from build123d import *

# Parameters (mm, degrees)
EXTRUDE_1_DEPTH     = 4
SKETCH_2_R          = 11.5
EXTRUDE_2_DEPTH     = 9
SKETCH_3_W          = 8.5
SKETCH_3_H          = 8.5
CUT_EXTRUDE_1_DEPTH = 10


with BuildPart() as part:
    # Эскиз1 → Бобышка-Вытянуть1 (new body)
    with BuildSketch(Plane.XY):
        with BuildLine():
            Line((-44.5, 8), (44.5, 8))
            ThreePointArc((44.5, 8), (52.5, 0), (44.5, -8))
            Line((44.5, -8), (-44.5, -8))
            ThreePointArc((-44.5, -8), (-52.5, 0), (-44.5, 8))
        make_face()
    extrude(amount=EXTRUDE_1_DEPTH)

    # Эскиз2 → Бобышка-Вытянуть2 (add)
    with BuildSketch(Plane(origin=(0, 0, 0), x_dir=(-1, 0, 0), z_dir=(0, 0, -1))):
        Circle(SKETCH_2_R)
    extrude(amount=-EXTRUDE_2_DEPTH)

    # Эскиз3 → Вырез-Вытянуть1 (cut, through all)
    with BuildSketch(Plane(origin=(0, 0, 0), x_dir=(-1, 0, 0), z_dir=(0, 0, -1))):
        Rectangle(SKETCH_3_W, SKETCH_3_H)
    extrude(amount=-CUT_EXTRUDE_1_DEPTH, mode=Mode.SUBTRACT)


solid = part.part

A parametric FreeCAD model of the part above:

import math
import FreeCAD as App
import Part
import Sketcher
from FreeCAD import Vector


def add_polygon(sketch, points):
    """Adds a closed chain of lines whose ends are joined by coincident constraints."""
    first, n = sketch.GeometryCount, len(points)
    for a, b in zip(points, points[1:] + points[:1]):
        sketch.addGeometry(Part.LineSegment(App.Vector(*a, 0), App.Vector(*b, 0)), False)
    for i in range(n):
        sketch.addConstraint(Sketcher.Constraint("Coincident", first + i, 2, first + (i + 1) % n, 1))

doc = App.newDocument("Part")
body = doc.addObject("PartDesign::Body", "Body")

sketch1 = body.newObject("Sketcher::SketchObject", "Sketch")
sketch1.AttachmentSupport = (doc.getObject("XY_Plane"), [""])
sketch1.MapMode = "FlatFace"
sketch1.addGeometry(Part.LineSegment(Vector(44, 8, 0), Vector(-44, 8, 0)), False)
sketch1.addGeometry(Part.ArcOfCircle(Part.Circle(Vector(-44, 0, 0), Vector(0, 0, 1), 8), math.radians(90), math.radians(270)), False)
sketch1.addGeometry(Part.LineSegment(Vector(-44, -8, 0), Vector(44, -8, 0)), False)
sketch1.addGeometry(Part.ArcOfCircle(Part.Circle(Vector(44, 0, 0), Vector(0, 0, 1), 8), math.radians(-90), math.radians(90)), False)
sketch1.addConstraint(Sketcher.Constraint("Tangent", 0, 2, 1, 1))
sketch1.addConstraint(Sketcher.Constraint("Tangent", 1, 2, 2, 1))
sketch1.addConstraint(Sketcher.Constraint("Tangent", 2, 2, 3, 1))
sketch1.addConstraint(Sketcher.Constraint("Tangent", 3, 2, 0, 1))
sketch1.addConstraint(Sketcher.Constraint("Horizontal", 0))
sketch1.addConstraint(Sketcher.Constraint("Horizontal", 2))
sketch1.addConstraint(Sketcher.Constraint("Symmetric", 1, 3, 3, 3, -1, 1))
sketch1.addConstraint(Sketcher.Constraint("Radius", 1, 8.0))
sketch1.addConstraint(Sketcher.Constraint("DistanceX", 0, 2, 0, 1, 89.0))
pad1 = body.newObject("PartDesign::Pad", "Pad")
pad1.Profile = sketch1
pad1.Length = 4

sketch2 = body.newObject("Sketcher::SketchObject", "Sketch001")
sketch2.AttachmentSupport = (doc.getObject("XY_Plane"), [""])
sketch2.MapMode = "FlatFace"
sketch2.addGeometry(Part.Circle(Vector(0, 0, 0), Vector(0, 0, 1), 12), False)
sketch2.addConstraint(Sketcher.Constraint("Coincident", 0, 3, -1, 1))
sketch2.addConstraint(Sketcher.Constraint("Diameter", 0, 23.0))
pad2 = body.newObject("PartDesign::Pad", "Pad001")
pad2.Profile = sketch2
pad2.Length = 9

sketch3 = body.newObject("Sketcher::SketchObject", "Sketch002")
sketch3.AttachmentSupport = (doc.getObject("XY_Plane"), [""])
sketch3.MapMode = "FlatFace"
add_polygon(sketch3, [(4, 4), (4, -4), (-4, -4), (-4, 4)])
sketch3.addConstraint(Sketcher.Constraint("Vertical", 0))
sketch3.addConstraint(Sketcher.Constraint("Horizontal", 1))
sketch3.addConstraint(Sketcher.Constraint("Vertical", 2))
sketch3.addConstraint(Sketcher.Constraint("Horizontal", 3))
sketch3.addConstraint(Sketcher.Constraint("Symmetric", 0, 2, 2, 2, -1, 1))
sketch3.addConstraint(Sketcher.Constraint("Equal", 3, 0))
sketch3.addConstraint(Sketcher.Constraint("DistanceX", 1, 2, 1, 1, 8.5))
pocket1 = body.newObject("PartDesign::Pocket", "Pocket")
pocket1.Profile = sketch3
pocket1.Type = "ThroughAll"
pocket1.Reversed = True

doc.recompute()
